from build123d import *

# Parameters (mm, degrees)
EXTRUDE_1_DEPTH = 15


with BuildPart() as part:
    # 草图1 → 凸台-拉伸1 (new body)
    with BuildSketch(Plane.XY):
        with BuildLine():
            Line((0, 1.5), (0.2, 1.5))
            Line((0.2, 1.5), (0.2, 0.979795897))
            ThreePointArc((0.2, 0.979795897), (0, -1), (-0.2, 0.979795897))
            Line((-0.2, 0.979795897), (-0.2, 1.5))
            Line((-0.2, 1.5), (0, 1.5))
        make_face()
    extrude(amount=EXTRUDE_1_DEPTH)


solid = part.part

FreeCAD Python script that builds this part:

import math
import FreeCAD as App
import Part
import Sketcher
from FreeCAD import Vector
Q = App.Units.Quantity

doc = App.newDocument("Part")
body = doc.addObject("PartDesign::Body", "Body")

# Sketch on XY plane
sketch1 = body.newObject("Sketcher::SketchObject", "Sketch")
sketch1.AttachmentSupport = (doc.getObject("XY_Plane"), [""])
sketch1.MapMode = "FlatFace"
sketch1.addGeometry([
    Part.LineSegment(Vector(0.2, 0.979796, 0), Vector(0.2, 1.5, 0)),
    Part.LineSegment(Vector(0.2, 1.5, 0), Vector(-0.2, 1.5, 0)),
    Part.LineSegment(Vector(-0.2, 1.5, 0), Vector(-0.2, 0.979796, 0)),
    Part.ArcOfCircle(Part.Circle(Vector(0, 0, 0), Vector(0, 0, 1), 1), math.radians(101.536959), math.radians(438.463041)),
], False)
sketch1.addConstraint([
    Sketcher.Constraint("Coincident", 0, 2, 1, 1),
    Sketcher.Constraint("Coincident", 1, 2, 2, 1),
    Sketcher.Constraint("Coincident", 2, 2, 3, 1),
    Sketcher.Constraint("Coincident", 3, 2, 0, 1),
    Sketcher.Constraint("Vertical", 0),
    Sketcher.Constraint("Horizontal", 1),
    Sketcher.Constraint("Vertical", 2),
    Sketcher.Constraint("Coincident", 3, 3, -1, 1),
    Sketcher.Constraint("Horizontal", 2, 2, 3, 2),
    Sketcher.Constraint("Radius", 3, Q("1 mm")),
    Sketcher.Constraint("DistanceX", 1, 2, 1, 1, Q("0.4 mm")),
    Sketcher.Constraint("DistanceY", -1, 1, 0, 2, Q("1.5 mm")),
])
pad1 = body.newObject("PartDesign::Pad", "Pad")
pad1.Profile = sketch1
pad1.Length = 15

doc.recompute()
